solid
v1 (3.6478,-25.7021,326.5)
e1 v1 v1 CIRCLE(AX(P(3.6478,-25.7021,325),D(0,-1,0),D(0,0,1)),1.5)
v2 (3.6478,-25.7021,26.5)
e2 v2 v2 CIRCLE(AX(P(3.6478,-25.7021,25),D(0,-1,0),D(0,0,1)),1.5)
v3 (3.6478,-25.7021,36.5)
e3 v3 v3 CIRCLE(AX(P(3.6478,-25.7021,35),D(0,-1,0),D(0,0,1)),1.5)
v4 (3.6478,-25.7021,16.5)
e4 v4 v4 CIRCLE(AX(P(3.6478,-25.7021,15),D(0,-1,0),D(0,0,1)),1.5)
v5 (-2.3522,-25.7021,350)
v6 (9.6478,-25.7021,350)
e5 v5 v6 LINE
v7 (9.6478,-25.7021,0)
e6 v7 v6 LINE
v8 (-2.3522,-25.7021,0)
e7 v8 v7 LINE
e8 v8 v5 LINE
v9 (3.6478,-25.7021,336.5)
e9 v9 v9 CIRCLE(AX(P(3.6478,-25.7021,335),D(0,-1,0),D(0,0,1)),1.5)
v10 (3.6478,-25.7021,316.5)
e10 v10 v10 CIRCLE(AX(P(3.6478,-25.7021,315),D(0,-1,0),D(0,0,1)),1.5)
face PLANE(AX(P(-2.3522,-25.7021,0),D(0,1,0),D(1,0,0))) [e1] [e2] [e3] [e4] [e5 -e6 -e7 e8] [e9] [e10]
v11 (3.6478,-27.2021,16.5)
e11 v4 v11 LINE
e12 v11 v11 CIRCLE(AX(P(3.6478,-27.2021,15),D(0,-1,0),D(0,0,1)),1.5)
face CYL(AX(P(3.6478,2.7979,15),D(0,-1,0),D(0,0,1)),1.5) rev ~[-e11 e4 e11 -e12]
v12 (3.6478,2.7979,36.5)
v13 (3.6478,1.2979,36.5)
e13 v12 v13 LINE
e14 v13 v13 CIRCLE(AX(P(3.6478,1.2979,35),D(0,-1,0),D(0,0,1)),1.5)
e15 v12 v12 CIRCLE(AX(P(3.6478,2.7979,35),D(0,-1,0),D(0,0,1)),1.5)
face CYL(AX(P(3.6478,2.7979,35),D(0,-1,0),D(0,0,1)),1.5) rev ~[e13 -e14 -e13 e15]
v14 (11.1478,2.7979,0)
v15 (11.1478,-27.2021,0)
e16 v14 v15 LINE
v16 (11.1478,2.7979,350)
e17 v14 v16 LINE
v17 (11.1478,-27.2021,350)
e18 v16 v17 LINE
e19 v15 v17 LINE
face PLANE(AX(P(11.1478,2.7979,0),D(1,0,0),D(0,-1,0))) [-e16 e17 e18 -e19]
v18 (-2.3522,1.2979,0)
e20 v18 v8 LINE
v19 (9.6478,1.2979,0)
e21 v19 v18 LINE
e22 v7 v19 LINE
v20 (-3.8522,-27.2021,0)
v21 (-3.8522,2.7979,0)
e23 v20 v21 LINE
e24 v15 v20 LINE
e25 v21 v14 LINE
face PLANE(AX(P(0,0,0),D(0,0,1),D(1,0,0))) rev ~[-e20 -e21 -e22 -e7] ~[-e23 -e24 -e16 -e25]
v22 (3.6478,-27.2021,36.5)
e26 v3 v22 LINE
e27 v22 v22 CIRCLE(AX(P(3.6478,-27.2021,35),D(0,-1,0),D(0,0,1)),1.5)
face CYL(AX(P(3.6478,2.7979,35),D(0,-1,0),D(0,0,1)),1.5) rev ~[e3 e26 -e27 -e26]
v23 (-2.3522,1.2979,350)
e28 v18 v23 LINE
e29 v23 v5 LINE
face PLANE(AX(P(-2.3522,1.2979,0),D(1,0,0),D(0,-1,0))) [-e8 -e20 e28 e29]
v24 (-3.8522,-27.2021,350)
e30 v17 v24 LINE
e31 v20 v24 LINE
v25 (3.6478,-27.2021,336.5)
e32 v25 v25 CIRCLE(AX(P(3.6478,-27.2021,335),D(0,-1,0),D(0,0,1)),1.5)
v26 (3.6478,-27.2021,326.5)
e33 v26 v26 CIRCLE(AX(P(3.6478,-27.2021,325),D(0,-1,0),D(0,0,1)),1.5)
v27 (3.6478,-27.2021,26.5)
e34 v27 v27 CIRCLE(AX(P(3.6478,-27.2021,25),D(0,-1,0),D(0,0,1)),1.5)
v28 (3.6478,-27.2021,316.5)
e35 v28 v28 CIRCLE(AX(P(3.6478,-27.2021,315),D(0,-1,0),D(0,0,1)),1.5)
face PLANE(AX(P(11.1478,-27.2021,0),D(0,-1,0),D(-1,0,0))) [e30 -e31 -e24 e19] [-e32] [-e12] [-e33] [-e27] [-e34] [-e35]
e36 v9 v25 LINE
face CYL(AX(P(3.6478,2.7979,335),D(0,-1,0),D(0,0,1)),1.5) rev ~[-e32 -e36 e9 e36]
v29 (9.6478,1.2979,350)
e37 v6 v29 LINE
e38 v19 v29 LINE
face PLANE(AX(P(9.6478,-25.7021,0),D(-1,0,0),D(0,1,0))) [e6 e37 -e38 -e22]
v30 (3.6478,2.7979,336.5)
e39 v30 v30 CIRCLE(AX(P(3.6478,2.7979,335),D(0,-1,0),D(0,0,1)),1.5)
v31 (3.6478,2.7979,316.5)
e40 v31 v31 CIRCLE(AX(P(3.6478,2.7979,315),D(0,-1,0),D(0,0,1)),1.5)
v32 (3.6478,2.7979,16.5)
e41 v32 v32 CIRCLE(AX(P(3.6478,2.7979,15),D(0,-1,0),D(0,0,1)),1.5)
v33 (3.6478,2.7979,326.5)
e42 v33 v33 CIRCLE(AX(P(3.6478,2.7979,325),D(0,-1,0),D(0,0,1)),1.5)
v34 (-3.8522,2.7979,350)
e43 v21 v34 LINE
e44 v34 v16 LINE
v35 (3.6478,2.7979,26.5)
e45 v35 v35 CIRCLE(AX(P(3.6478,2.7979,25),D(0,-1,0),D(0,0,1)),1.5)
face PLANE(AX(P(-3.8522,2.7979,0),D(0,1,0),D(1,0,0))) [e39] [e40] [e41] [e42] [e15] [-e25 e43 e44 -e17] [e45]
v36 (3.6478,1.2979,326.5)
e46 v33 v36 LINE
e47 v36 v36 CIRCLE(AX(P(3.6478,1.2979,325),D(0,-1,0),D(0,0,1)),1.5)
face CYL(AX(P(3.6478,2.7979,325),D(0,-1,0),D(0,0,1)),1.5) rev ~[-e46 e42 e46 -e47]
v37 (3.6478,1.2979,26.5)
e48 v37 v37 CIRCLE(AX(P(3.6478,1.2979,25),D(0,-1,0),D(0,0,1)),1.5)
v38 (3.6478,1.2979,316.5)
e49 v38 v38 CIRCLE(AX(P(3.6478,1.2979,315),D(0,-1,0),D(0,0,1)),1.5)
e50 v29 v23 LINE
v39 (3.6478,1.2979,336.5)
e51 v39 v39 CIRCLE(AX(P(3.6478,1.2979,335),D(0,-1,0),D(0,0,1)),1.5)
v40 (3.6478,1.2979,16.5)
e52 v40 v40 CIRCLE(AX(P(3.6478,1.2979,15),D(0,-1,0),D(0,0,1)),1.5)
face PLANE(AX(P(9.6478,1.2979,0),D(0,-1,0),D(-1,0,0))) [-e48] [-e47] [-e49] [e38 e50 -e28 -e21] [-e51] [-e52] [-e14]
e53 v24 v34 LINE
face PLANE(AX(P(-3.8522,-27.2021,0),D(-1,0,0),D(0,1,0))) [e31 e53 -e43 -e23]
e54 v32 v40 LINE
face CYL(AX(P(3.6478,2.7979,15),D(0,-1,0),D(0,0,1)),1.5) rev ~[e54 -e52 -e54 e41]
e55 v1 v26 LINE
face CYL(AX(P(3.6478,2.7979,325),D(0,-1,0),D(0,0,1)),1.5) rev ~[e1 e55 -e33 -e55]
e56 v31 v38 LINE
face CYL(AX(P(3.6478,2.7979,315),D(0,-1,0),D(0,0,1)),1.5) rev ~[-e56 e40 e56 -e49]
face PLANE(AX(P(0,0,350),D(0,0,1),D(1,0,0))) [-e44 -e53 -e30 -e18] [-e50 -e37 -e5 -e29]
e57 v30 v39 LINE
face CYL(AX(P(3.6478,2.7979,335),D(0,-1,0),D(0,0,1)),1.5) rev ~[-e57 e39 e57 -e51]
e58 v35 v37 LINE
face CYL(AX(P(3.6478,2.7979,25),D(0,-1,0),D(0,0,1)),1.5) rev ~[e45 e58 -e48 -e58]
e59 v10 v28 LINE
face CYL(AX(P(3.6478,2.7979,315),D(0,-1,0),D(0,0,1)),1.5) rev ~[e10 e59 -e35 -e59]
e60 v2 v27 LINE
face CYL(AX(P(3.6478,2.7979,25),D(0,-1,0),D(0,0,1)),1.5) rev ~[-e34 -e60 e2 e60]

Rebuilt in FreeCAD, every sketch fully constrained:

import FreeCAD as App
import Part
import Sketcher

V = App.Vector


def add_polygon(sketch, points):
    """Adds a closed chain of lines whose ends are joined by coincident constraints."""
    first, n = sketch.GeometryCount, len(points)
    for a, b in zip(points, points[1:] + points[:1]):
        sketch.addGeometry(Part.LineSegment(App.Vector(*a, 0), App.Vector(*b, 0)), False)
    for i in range(n):
        sketch.addConstraint(Sketcher.Constraint("Coincident", first + i, 2, first + (i + 1) % n, 1))

doc = App.newDocument("Part")
body = doc.addObject("PartDesign::Body", "Body")

# Sketch on XY plane
sketch1 = body.newObject("Sketcher::SketchObject", "Sketch")
sketch1.AttachmentSupport = (doc.getObject("XY_Plane"), [""])
sketch1.MapMode = "FlatFace"
add_polygon(sketch1, [(11.1478, 2.7979), (-3.8522, 2.7979), (-3.8522, -27.2021), (11.1478, -27.2021)])  # lines 0-3
sketch1.addConstraint([
    Sketcher.Constraint("Horizontal", 0),
    Sketcher.Constraint("Vertical", 1),
    Sketcher.Constraint("Horizontal", 2),
    Sketcher.Constraint("Vertical", 3),
    Sketcher.Constraint("DistanceX", 0, 2, 0, 1, 15.0),
    Sketcher.Constraint("DistanceY", 1, 2, 1, 1, 30.0),
    Sketcher.Constraint("DistanceY", -1, 1, 0, 2, 2.798),
    Sketcher.Constraint("DistanceX", 0, 2, -1, 1, 3.8522),
])
pad1 = body.newObject("PartDesign::Pad", "Pad")
pad1.Profile = sketch1
pad1.Length = 350

# Sketch on XZ plane
sketch2 = body.newObject("Sketcher::SketchObject", "Sketch001")
sketch2.AttachmentSupport = (doc.getObject("XZ_Plane"), [""])
sketch2.MapMode = "FlatFace"
sketch2.AttachmentOffset = App.Placement(V(0, 0, -2.7979), App.Rotation())
sketch2.addGeometry([
    Part.Circle(V(3.6478, 335, 0), V(0, 0, 1), 1.5),  # 0
    Part.Circle(V(3.6478, 325, 0), V(0, 0, 1), 1.5),  # 1
    Part.Circle(V(3.6478, 315, 0), V(0, 0, 1), 1.5),  # 2
    Part.Circle(V(3.6478, 35, 0), V(0, 0, 1), 1.5),  # 3
    Part.Circle(V(3.6478, 25, 0), V(0, 0, 1), 1.5),  # 4
    Part.Circle(V(3.6478, 15, 0), V(0, 0, 1), 1.5),  # 5
], False)
sketch2.addConstraint([
    Sketcher.Constraint("Equal", 0, 1),
    Sketcher.Constraint("Equal", 1, 2),
    Sketcher.Constraint("Equal", 2, 3),
    Sketcher.Constraint("Equal", 3, 4),
    Sketcher.Constraint("Equal", 4, 5),
    Sketcher.Constraint("Vertical", 0, 3, 1, 3),
    Sketcher.Constraint("Vertical", 1, 3, 2, 3),
    Sketcher.Constraint("Vertical", 2, 3, 3, 3),
    Sketcher.Constraint("Vertical", 3, 3, 4, 3),
    Sketcher.Constraint("Vertical", 4, 3, 5, 3),
    Sketcher.Constraint("Diameter", 0, 3.0),
    Sketcher.Constraint("DistanceY", -1, 1, 0, 3, 335.0),
    Sketcher.Constraint("DistanceY", -1, 1, 1, 3, 325.0),
    Sketcher.Constraint("DistanceY", -1, 1, 2, 3, 315.0),
    Sketcher.Constraint("DistanceY", -1, 1, 3, 3, 35.0),
    Sketcher.Constraint("DistanceY", -1, 1, 4, 3, 25.0),
    Sketcher.Constraint("DistanceY", -1, 1, 5, 3, 15.0),
    Sketcher.Constraint("DistanceX", -1, 1, 0, 3, 3.6478),
])
doc.recompute()
hole = body.newObject("PartDesign::Hole", "Hole")
hole.Profile = sketch2
hole.ThreadType = "None"
hole.Diameter = 3
hole.DepthType = "Dimension"
hole.Depth = 30
hole.DrillPoint = "Flat"
hole.Reversed = True

# Sketch on XY plane
sketch3 = body.newObject("Sketcher::SketchObject", "Sketch002")
sketch3.AttachmentSupport = (doc.getObject("XY_Plane"), [""])
sketch3.MapMode = "FlatFace"
add_polygon(sketch3, [(-2.3522, 1.2979), (9.6478, 1.2979), (9.6478, -25.7021), (-2.3522, -25.7021)])  # lines 0-3
sketch3.addConstraint([
    Sketcher.Constraint("Horizontal", 0),
    Sketcher.Constraint("Vertical", 1),
    Sketcher.Constraint("Horizontal", 2),
    Sketcher.Constraint("Vertical", 3),
    Sketcher.Constraint("DistanceX", 0, 1, 0, 2, 12.0),
    Sketcher.Constraint("DistanceY", 1, 2, 1, 1, 27.0),
    Sketcher.Constraint("DistanceY", -1, 1, 0, 2, 1.298),
    Sketcher.Constraint("DistanceX", -1, 1, 0, 2, 9.6478),
])
pocket1 = body.newObject("PartDesign::Pocket", "Pocket")
pocket1.Profile = sketch3
pocket1.Length = 350
pocket1.Reversed = True

doc.recompute()
